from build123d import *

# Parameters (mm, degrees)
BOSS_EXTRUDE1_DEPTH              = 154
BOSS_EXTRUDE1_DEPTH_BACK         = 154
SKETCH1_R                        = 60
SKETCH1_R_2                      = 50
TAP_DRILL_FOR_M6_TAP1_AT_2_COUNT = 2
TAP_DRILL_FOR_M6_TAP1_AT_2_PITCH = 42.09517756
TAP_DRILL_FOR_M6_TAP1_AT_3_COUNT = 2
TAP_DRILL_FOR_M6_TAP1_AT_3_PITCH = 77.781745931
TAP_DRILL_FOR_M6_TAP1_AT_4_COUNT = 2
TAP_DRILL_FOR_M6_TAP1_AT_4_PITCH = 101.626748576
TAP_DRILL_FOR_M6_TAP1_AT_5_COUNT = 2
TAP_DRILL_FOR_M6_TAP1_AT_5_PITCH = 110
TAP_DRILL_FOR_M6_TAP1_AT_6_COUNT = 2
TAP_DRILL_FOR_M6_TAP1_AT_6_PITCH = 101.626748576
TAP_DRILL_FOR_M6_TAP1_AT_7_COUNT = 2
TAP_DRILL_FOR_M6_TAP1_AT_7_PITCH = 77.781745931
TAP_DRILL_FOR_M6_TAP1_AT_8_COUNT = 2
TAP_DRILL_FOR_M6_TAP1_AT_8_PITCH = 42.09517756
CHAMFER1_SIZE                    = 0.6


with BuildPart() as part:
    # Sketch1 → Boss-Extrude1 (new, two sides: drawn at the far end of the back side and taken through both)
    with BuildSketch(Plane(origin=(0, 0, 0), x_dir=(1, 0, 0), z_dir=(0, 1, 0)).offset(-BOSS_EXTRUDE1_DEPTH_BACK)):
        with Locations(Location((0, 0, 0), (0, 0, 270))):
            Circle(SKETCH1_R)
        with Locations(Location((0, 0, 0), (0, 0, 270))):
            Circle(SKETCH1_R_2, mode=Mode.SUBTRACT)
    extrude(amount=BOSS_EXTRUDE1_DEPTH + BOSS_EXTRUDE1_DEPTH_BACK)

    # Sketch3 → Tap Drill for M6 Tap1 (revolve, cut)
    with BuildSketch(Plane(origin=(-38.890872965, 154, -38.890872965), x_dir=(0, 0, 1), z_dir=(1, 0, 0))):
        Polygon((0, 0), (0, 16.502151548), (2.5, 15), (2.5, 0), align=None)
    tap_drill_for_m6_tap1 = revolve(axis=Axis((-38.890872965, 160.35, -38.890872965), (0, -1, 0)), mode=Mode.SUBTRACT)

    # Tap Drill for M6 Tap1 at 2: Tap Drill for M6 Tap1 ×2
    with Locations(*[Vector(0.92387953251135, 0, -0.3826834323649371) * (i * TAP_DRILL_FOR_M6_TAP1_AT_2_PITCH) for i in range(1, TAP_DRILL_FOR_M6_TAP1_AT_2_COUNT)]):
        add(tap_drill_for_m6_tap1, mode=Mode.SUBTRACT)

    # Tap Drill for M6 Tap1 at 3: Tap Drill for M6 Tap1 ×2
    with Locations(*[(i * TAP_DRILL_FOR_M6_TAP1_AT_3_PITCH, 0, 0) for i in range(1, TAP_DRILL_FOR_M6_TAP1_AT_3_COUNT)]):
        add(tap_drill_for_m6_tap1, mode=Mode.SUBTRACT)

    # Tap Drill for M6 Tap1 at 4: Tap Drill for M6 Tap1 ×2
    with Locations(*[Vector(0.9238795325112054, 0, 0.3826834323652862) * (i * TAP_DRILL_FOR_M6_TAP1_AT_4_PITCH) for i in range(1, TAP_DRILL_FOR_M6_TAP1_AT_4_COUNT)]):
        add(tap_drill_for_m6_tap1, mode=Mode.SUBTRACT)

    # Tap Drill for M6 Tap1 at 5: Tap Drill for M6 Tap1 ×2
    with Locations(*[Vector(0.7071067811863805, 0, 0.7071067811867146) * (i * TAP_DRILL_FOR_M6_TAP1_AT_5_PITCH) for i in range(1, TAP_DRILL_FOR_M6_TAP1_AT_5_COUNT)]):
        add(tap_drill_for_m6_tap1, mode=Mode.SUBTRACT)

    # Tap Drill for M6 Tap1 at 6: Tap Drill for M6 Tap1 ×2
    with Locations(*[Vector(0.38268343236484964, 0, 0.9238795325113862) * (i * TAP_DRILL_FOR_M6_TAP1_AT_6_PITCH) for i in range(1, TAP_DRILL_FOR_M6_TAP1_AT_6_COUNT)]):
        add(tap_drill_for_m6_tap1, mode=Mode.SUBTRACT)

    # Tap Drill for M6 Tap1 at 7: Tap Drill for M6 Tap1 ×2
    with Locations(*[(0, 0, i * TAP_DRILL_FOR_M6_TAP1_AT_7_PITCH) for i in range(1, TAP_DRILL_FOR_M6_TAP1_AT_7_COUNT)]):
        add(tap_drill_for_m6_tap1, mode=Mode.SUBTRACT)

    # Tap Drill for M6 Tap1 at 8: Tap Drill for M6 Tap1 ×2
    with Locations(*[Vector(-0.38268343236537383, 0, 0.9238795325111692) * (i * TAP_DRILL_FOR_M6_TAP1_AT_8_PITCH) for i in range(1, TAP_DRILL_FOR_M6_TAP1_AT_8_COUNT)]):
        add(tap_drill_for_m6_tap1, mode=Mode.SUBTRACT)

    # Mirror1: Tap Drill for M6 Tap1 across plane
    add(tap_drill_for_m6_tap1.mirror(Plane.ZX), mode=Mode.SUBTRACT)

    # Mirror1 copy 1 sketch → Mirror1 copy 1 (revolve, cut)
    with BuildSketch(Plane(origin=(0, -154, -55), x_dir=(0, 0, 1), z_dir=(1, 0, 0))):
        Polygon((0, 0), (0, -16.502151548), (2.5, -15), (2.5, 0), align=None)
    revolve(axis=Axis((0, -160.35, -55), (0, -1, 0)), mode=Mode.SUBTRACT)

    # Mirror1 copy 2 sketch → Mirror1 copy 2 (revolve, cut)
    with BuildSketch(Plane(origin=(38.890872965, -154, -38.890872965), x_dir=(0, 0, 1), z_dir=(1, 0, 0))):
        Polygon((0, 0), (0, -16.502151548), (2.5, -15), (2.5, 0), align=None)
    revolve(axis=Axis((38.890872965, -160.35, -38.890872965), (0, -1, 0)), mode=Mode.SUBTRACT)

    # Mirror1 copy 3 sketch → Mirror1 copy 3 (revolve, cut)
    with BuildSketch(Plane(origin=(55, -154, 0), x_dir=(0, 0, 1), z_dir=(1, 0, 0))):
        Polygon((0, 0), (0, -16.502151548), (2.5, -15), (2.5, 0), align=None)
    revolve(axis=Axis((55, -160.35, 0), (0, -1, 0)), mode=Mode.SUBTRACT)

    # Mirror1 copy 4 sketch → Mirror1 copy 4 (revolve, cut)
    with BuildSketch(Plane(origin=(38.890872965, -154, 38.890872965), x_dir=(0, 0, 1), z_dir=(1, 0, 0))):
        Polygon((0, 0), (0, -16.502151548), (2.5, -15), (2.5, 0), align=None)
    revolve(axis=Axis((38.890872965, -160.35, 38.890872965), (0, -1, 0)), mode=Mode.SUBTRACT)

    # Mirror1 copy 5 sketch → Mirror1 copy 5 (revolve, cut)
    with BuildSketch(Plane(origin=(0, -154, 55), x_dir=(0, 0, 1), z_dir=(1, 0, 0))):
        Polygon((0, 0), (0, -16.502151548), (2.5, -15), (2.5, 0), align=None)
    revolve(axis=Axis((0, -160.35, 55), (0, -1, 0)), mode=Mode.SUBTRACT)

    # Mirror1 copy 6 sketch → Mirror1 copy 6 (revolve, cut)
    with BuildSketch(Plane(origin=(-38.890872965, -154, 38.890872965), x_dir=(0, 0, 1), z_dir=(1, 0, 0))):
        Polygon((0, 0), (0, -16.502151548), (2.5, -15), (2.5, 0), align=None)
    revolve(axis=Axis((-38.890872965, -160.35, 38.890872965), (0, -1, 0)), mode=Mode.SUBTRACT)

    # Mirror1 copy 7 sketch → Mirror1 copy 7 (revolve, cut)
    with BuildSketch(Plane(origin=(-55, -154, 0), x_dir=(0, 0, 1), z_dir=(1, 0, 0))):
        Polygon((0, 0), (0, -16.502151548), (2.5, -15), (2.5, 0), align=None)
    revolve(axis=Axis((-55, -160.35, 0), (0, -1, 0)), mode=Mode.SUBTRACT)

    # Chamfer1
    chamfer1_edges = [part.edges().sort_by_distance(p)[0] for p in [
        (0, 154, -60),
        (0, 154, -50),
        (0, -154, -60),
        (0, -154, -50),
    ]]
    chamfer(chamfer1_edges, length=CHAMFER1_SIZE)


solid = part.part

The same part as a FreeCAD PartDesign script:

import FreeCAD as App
import Part
import Sketcher
Q = App.Units.Quantity


def edges_at(feature, points):
    """Names of the edges that pass closest to the given points."""
    edges = feature.Shape.Edges
    near = lambda p: min(range(len(edges)), key=lambda i: edges[i].distToShape(Part.Vertex(*p))[0])
    return sorted({f"Edge{near(p) + 1}" for p in points})


def add_polygon(sketch, points):
    """Adds a closed chain of lines whose ends are joined by coincident constraints."""
    first, n = sketch.GeometryCount, len(points)
    for a, b in zip(points, points[1:] + points[:1]):
        sketch.addGeometry(Part.LineSegment(App.Vector(*a, 0), App.Vector(*b, 0)), False)
    for i in range(n):
        sketch.addConstraint(Sketcher.Constraint("Coincident", first + i, 2, first + (i + 1) % n, 1))

doc = App.newDocument("Part")
params = doc.addObject("Spreadsheet::Sheet", "Params")
for row, (alias, value) in enumerate([
    ("sketch1_diameter", "120 mm"),
    ("sketch1_diameter2", "100 mm"),
    ("pad1_length", "154 mm"),
    ("pad1_length2", "154 mm"),
    ("sketch2_width", "15 mm"),
    ("sketch2_height", "2.5 mm"),
    ("groove_angle", "360 deg"),
    ("linearpattern_pitch", "42.095178 mm"),
    ("linearpattern2_pitch", "77.781746 mm"),
    ("linearpattern3_pitch", "101.626749 mm"),
    ("linearpattern4_pitch", "110 mm"),
    ("linearpattern5_pitch", "101.626749 mm"),
    ("linearpattern6_pitch", "77.781746 mm"),
    ("linearpattern7_pitch", "42.095178 mm"),
    ("sketch3_width", "15 mm"),
    ("sketch3_height", "2.5 mm"),
    ("groove2_angle", "360 deg"),
    ("sketch4_width", "15 mm"),
    ("sketch4_height", "2.5 mm"),
    ("groove3_angle", "360 deg"),
    ("sketch5_width", "15 mm"),
    ("sketch5_height", "2.5 mm"),
    ("groove4_angle", "360 deg"),
    ("sketch6_width", "15 mm"),
    ("sketch6_height", "2.5 mm"),
    ("groove5_angle", "360 deg"),
    ("sketch7_width", "15 mm"),
    ("sketch7_height", "2.5 mm"),
    ("groove6_angle", "360 deg"),
    ("sketch8_width", "15 mm"),
    ("sketch8_height", "2.5 mm"),
    ("groove7_angle", "360 deg"),
    ("sketch9_width", "15 mm"),
    ("sketch9_height", "2.5 mm"),
    ("groove8_angle", "360 deg"),
    ("chamfer_size", "0.6 mm"),
], start=1):
    params.set(f"A{row}", alias)
    params.set(f"B{row}", "=" + value)
    params.setAlias(f"B{row}", alias)

body = doc.addObject("PartDesign::Body", "Body")

# Sketch on XZ plane
sketch1 = body.newObject("Sketcher::SketchObject", "Sketch")
sketch1.AttachmentSupport = (doc.getObject("XZ_Plane"), [""])
sketch1.MapMode = "FlatFace"
sketch1.addGeometry(Part.Circle(App.Vector(0, 0, 0), App.Vector(0, 0, 1), 60), False)
sketch1.addGeometry(Part.Circle(App.Vector(0, 0, 0), App.Vector(0, 0, 1), 50), False)
sketch1.addConstraint(Sketcher.Constraint("Coincident", 0, 3, -1, 1))
sketch1.addConstraint(Sketcher.Constraint("Coincident", 1, 3, -1, 1))
sketch1.addConstraint(Sketcher.Constraint("Diameter", 0, 120.0))
sketch1.addConstraint(Sketcher.Constraint("Diameter", 1, 100.0))
sketch1.setExpression("Constraints[2]", "Params.sketch1_diameter")
sketch1.setExpression("Constraints[3]", "Params.sketch1_diameter2")
pad1 = body.newObject("PartDesign::Pad", "Pad")
pad1.Profile = sketch1
pad1.Type = "TwoLengths"
pad1.setExpression("Length", "Params.pad1_length")
pad1.setExpression("Length2", "Params.pad1_length2")
pad1.Reversed = True

# Sketch on YZ plane
sketch2 = body.newObject("Sketcher::SketchObject", "Sketch001")
sketch2.AttachmentSupport = (doc.getObject("YZ_Plane"), [""])
sketch2.MapMode = "FlatFace"
sketch2.AttachmentOffset = App.Placement(App.Vector(0, 0, -38.890873), App.Rotation())
add_polygon(sketch2, [(137.5, -38.9), (154, -38.9), (154, -36.4), (139, -36.4)])  # lines 0-3
sketch2.addGeometry(Part.LineSegment(App.Vector(154, -38.9, 0), App.Vector(137.5, -38.9, 0)), True)  # axis
sketch2.addConstraint(Sketcher.Constraint("Horizontal", 0))
sketch2.addConstraint(Sketcher.Constraint("Vertical", 1))
sketch2.addConstraint(Sketcher.Constraint("Horizontal", 2))
sketch2.addConstraint(Sketcher.Constraint("Horizontal", 4))
sketch2.addConstraint(Sketcher.Constraint("Coincident", 4, 1, 0, 2))
sketch2.addConstraint(Sketcher.Constraint("Equal", 0, 4))
sketch2.addConstraint(Sketcher.Constraint("DistanceX", 2, 2, 2, 1, 15.0))
sketch2.addConstraint(Sketcher.Constraint("Angle", 3, Q("-121 deg")))
sketch2.addConstraint(Sketcher.Constraint("DistanceY", 1, 1, 1, 2, 2.5))
sketch2.addConstraint(Sketcher.Constraint("DistanceX", -1, 1, 0, 2, 154.0))
sketch2.addConstraint(Sketcher.Constraint("DistanceY", 0, 2, -1, 1, 38.890873))
sketch2.setExpression("Constraints[10]", "Params.sketch2_width")
sketch2.setExpression("Constraints[12]", "Params.sketch2_height")
groove = body.newObject("PartDesign::Groove", "Groove")
groove.Profile = sketch2
groove.ReferenceAxis = (sketch2, ["Axis0"])
groove.setExpression("Angle", "Params.groove_angle")
doc.recompute()

datumline = body.newObject("PartDesign::Line", "DatumLine")
datumline.Placement = App.Placement(App.Vector(0, 0, 0), App.Rotation(App.Vector(0, 0, 1), App.Vector(0.923879533, 0, -0.382683432)))
linearpattern = body.newObject("PartDesign::LinearPattern", "LinearPattern")
linearpattern.Originals = [groove]
linearpattern.Direction = (datumline, [""])
linearpattern.Mode = "offset"
linearpattern.setExpression("Offset", "Params.linearpattern_pitch")
linearpattern.Occurrences = 2
body.Tip = linearpattern
doc.recompute()

linearpattern2 = body.newObject("PartDesign::LinearPattern", "LinearPattern001")
linearpattern2.Originals = [groove]
linearpattern2.Direction = (doc.getObject("X_Axis"), [""])
linearpattern2.Mode = "offset"
linearpattern2.setExpression("Offset", "Params.linearpattern2_pitch")
linearpattern2.Occurrences = 2
body.Tip = linearpattern2
doc.recompute()

datumline2 = body.newObject("PartDesign::Line", "DatumLine001")
datumline2.Placement = App.Placement(App.Vector(0, 0, 0), App.Rotation(App.Vector(0, 0, 1), App.Vector(0.923879533, 0, 0.382683432)))
linearpattern3 = body.newObject("PartDesign::LinearPattern", "LinearPattern002")
linearpattern3.Originals = [groove]
linearpattern3.Direction = (datumline2, [""])
linearpattern3.Mode = "offset"
linearpattern3.setExpression("Offset", "Params.linearpattern3_pitch")
linearpattern3.Occurrences = 2
body.Tip = linearpattern3
doc.recompute()

datumline3 = body.newObject("PartDesign::Line", "DatumLine002")
datumline3.Placement = App.Placement(App.Vector(0, 0, 0), App.Rotation(App.Vector(0, 0, 1), App.Vector(0.707106781, 0, 0.707106781)))
linearpattern4 = body.newObject("PartDesign::LinearPattern", "LinearPattern003")
linearpattern4.Originals = [groove]
linearpattern4.Direction = (datumline3, [""])
linearpattern4.Mode = "offset"
linearpattern4.setExpression("Offset", "Params.linearpattern4_pitch")
linearpattern4.Occurrences = 2
body.Tip = linearpattern4
doc.recompute()

datumline4 = body.newObject("PartDesign::Line", "DatumLine003")
datumline4.Placement = App.Placement(App.Vector(0, 0, 0), App.Rotation(App.Vector(0, 0, 1), App.Vector(0.382683432, 0, 0.923879533)))
linearpattern5 = body.newObject("PartDesign::LinearPattern", "LinearPattern004")
linearpattern5.Originals = [groove]
linearpattern5.Direction = (datumline4, [""])
linearpattern5.Mode = "offset"
linearpattern5.setExpression("Offset", "Params.linearpattern5_pitch")
linearpattern5.Occurrences = 2
body.Tip = linearpattern5
doc.recompute()

linearpattern6 = body.newObject("PartDesign::LinearPattern", "LinearPattern005")
linearpattern6.Originals = [groove]
linearpattern6.Direction = (doc.getObject("Z_Axis"), [""])
linearpattern6.Mode = "offset"
linearpattern6.setExpression("Offset", "Params.linearpattern6_pitch")
linearpattern6.Occurrences = 2
body.Tip = linearpattern6
doc.recompute()

datumline5 = body.newObject("PartDesign::Line", "DatumLine004")
datumline5.Placement = App.Placement(App.Vector(0, 0, 0), App.Rotation(App.Vector(0, 0, 1), App.Vector(-0.382683432, 0, 0.923879533)))
linearpattern7 = body.newObject("PartDesign::LinearPattern", "LinearPattern006")
linearpattern7.Originals = [groove]
linearpattern7.Direction = (datumline5, [""])
linearpattern7.Mode = "offset"
linearpattern7.setExpression("Offset", "Params.linearpattern7_pitch")
linearpattern7.Occurrences = 2
body.Tip = linearpattern7
doc.recompute()

mirrored = body.newObject("PartDesign::Mirrored", "Mirrored")
mirrored.Originals = [groove]
mirrored.MirrorPlane = (doc.getObject("XZ_Plane"), [""])
body.Tip = mirrored

# Sketch on YZ plane
sketch3 = body.newObject("Sketcher::SketchObject", "Sketch002")
sketch3.AttachmentSupport = (doc.getObject("YZ_Plane"), [""])
sketch3.MapMode = "FlatFace"
add_polygon(sketch3, [(-154, -55), (-137.5, -55), (-139, -52.5), (-154, -52.5)])  # lines 0-3
sketch3.addGeometry(Part.LineSegment(App.Vector(-137.5, -55, 0), App.Vector(-154, -55, 0)), True)  # axis
sketch3.addConstraint(Sketcher.Constraint("Horizontal", 0))
sketch3.addConstraint(Sketcher.Constraint("Horizontal", 2))
sketch3.addConstraint(Sketcher.Constraint("Vertical", 3))
sketch3.addConstraint(Sketcher.Constraint("Horizontal", 4))
sketch3.addConstraint(Sketcher.Constraint("Coincident", 4, 1, 0, 2))
sketch3.addConstraint(Sketcher.Constraint("Vertical", 2, 2, 4, 2))
sketch3.addConstraint(Sketcher.Constraint("DistanceX", 2, 2, 2, 1, 15.0))
sketch3.addConstraint(Sketcher.Constraint("Angle", 1, Q("121 deg")))
sketch3.addConstraint(Sketcher.Constraint("DistanceY", 3, 2, 3, 1, 2.5))
sketch3.addConstraint(Sketcher.Constraint("DistanceY", 0, 2, -1, 1, 55.0))
sketch3.addConstraint(Sketcher.Constraint("DistanceX", 1, 2, -1, 1, 139.0))
sketch3.setExpression("Constraints[10]", "Params.sketch3_width")
sketch3.setExpression("Constraints[12]", "Params.sketch3_height")
groove2 = body.newObject("PartDesign::Groove", "Groove001")
groove2.Profile = sketch3
groove2.ReferenceAxis = (sketch3, ["Axis0"])
groove2.setExpression("Angle", "Params.groove2_angle")

# Sketch on YZ plane
sketch4 = body.newObject("Sketcher::SketchObject", "Sketch003")
sketch4.AttachmentSupport = (doc.getObject("YZ_Plane"), [""])
sketch4.MapMode = "FlatFace"
sketch4.AttachmentOffset = App.Placement(App.Vector(0, 0, 38.890873), App.Rotation())
add_polygon(sketch4, [(-154, -38.9), (-137.5, -38.9), (-139, -36.4), (-154, -36.4)])  # lines 0-3
sketch4.addGeometry(Part.LineSegment(App.Vector(-137.5, -38.9, 0), App.Vector(-154, -38.9, 0)), True)  # axis
sketch4.addConstraint(Sketcher.Constraint("Horizontal", 0))
sketch4.addConstraint(Sketcher.Constraint("Horizontal", 2))
sketch4.addConstraint(Sketcher.Constraint("Vertical", 3))
sketch4.addConstraint(Sketcher.Constraint("Horizontal", 4))
sketch4.addConstraint(Sketcher.Constraint("Coincident", 4, 1, 0, 2))
sketch4.addConstraint(Sketcher.Constraint("Vertical", 2, 2, 4, 2))
sketch4.addConstraint(Sketcher.Constraint("DistanceX", 2, 2, 2, 1, 15.0))
sketch4.addConstraint(Sketcher.Constraint("Angle", 1, Q("121 deg")))
sketch4.addConstraint(Sketcher.Constraint("DistanceY", 3, 2, 3, 1, 2.5))
sketch4.addConstraint(Sketcher.Constraint("DistanceX", 1, 2, -1, 1, 139.0))
sketch4.addConstraint(Sketcher.Constraint("DistanceY", 0, 2, -1, 1, 38.890873))
sketch4.setExpression("Constraints[10]", "Params.sketch4_width")
sketch4.setExpression("Constraints[12]", "Params.sketch4_height")
groove3 = body.newObject("PartDesign::Groove", "Groove002")
groove3.Profile = sketch4
groove3.ReferenceAxis = (sketch4, ["Axis0"])
groove3.setExpression("Angle", "Params.groove3_angle")

# Sketch on YZ plane
sketch5 = body.newObject("Sketcher::SketchObject", "Sketch004")
sketch5.AttachmentSupport = (doc.getObject("YZ_Plane"), [""])
sketch5.MapMode = "FlatFace"
sketch5.AttachmentOffset = App.Placement(App.Vector(0, 0, 55), App.Rotation())
add_polygon(sketch5, [(-154, 0), (-137.5, 0), (-139, 2.5), (-154, 2.5)])  # lines 0-3
sketch5.addConstraint(Sketcher.Constraint("Horizontal", 0))
sketch5.addConstraint(Sketcher.Constraint("Horizontal", 2))
sketch5.addConstraint(Sketcher.Constraint("Vertical", 3))
sketch5.addConstraint(Sketcher.Constraint("PointOnObject", 0, 2, -1))
sketch5.addConstraint(Sketcher.Constraint("DistanceX", 2, 2, 2, 1, 15.0))
sketch5.addConstraint(Sketcher.Constraint("Angle", 1, Q("121 deg")))
sketch5.addConstraint(Sketcher.Constraint("DistanceY", 3, 2, 3, 1, 2.5))
sketch5.addConstraint(Sketcher.Constraint("DistanceX", 1, 2, -1, 1, 139.0))
sketch5.setExpression("Constraints[8]", "Params.sketch5_width")
sketch5.setExpression("Constraints[10]", "Params.sketch5_height")
groove4 = body.newObject("PartDesign::Groove", "Groove003")
groove4.Profile = sketch5
groove4.ReferenceAxis = (sketch5, ["H_Axis"])
groove4.setExpression("Angle", "Params.groove4_angle")

# Sketch on YZ plane
sketch6 = body.newObject("Sketcher::SketchObject", "Sketch005")
sketch6.AttachmentSupport = (doc.getObject("YZ_Plane"), [""])
sketch6.MapMode = "FlatFace"
sketch6.AttachmentOffset = App.Placement(App.Vector(0, 0, 38.890873), App.Rotation())
add_polygon(sketch6, [(-154, 38.9), (-137.5, 38.9), (-139, 41.4), (-154, 41.4)])  # lines 0-3
sketch6.addGeometry(Part.LineSegment(App.Vector(-137.5, 38.9, 0), App.Vector(-154, 38.9, 0)), True)  # axis
sketch6.addConstraint(Sketcher.Constraint("Horizontal", 0))
sketch6.addConstraint(Sketcher.Constraint("Horizontal", 2))
sketch6.addConstraint(Sketcher.Constraint("Vertical", 3))
sketch6.addConstraint(Sketcher.Constraint("Horizontal", 4))
sketch6.addConstraint(Sketcher.Constraint("Coincident", 4, 1, 0, 2))
sketch6.addConstraint(Sketcher.Constraint("Vertical", 2, 2, 4, 2))
sketch6.addConstraint(Sketcher.Constraint("DistanceX", 2, 2, 2, 1, 15.0))
sketch6.addConstraint(Sketcher.Constraint("Angle", 1, Q("121 deg")))
sketch6.addConstraint(Sketcher.Constraint("DistanceY", 3, 2, 3, 1, 2.5))
sketch6.addConstraint(Sketcher.Constraint("DistanceX", 1, 2, -1, 1, 139.0))
sketch6.addConstraint(Sketcher.Constraint("DistanceY", -1, 1, 0, 2, 38.890873))
sketch6.setExpression("Constraints[10]", "Params.sketch6_width")
sketch6.setExpression("Constraints[12]", "Params.sketch6_height")
groove5 = body.newObject("PartDesign::Groove", "Groove004")
groove5.Profile = sketch6
groove5.ReferenceAxis = (sketch6, ["Axis0"])
groove5.setExpression("Angle", "Params.groove5_angle")

# Sketch on YZ plane
sketch7 = body.newObject("Sketcher::SketchObject", "Sketch006")
sketch7.AttachmentSupport = (doc.getObject("YZ_Plane"), [""])
sketch7.MapMode = "FlatFace"
add_polygon(sketch7, [(-154, 55), (-137.5, 55), (-139, 57.5), (-154, 57.5)])  # lines 0-3
sketch7.addGeometry(Part.LineSegment(App.Vector(-137.5, 55, 0), App.Vector(-154, 55, 0)), True)  # axis
sketch7.addConstraint(Sketcher.Constraint("Horizontal", 0))
sketch7.addConstraint(Sketcher.Constraint("Horizontal", 2))
sketch7.addConstraint(Sketcher.Constraint("Vertical", 3))
sketch7.addConstraint(Sketcher.Constraint("Horizontal", 4))
sketch7.addConstraint(Sketcher.Constraint("Coincident", 4, 1, 0, 2))
sketch7.addConstraint(Sketcher.Constraint("Vertical", 2, 2, 4, 2))
sketch7.addConstraint(Sketcher.Constraint("DistanceX", 2, 2, 2, 1, 15.0))
sketch7.addConstraint(Sketcher.Constraint("Angle", 1, Q("121 deg")))
sketch7.addConstraint(Sketcher.Constraint("DistanceY", 3, 2, 3, 1, 2.5))
sketch7.addConstraint(Sketcher.Constraint("DistanceY", -1, 1, 0, 2, 55.0))
sketch7.addConstraint(Sketcher.Constraint("DistanceX", 1, 2, -1, 1, 139.0))
sketch7.setExpression("Constraints[10]", "Params.sketch7_width")
sketch7.setExpression("Constraints[12]", "Params.sketch7_height")
groove6 = body.newObject("PartDesign::Groove", "Groove005")
groove6.Profile = sketch7
groove6.ReferenceAxis = (sketch7, ["Axis0"])
groove6.setExpression("Angle", "Params.groove6_angle")

# Sketch on YZ plane
sketch8 = body.newObject("Sketcher::SketchObject", "Sketch007")
sketch8.AttachmentSupport = (doc.getObject("YZ_Plane"), [""])
sketch8.MapMode = "FlatFace"
sketch8.AttachmentOffset = App.Placement(App.Vector(0, 0, -38.890873), App.Rotation())
add_polygon(sketch8, [(-154, 38.9), (-137.5, 38.9), (-139, 41.4), (-154, 41.4)])  # lines 0-3
sketch8.addGeometry(Part.LineSegment(App.Vector(-137.5, 38.9, 0), App.Vector(-154, 38.9, 0)), True)  # axis
sketch8.addConstraint(Sketcher.Constraint("Horizontal", 0))
sketch8.addConstraint(Sketcher.Constraint("Horizontal", 2))
sketch8.addConstraint(Sketcher.Constraint("Vertical", 3))
sketch8.addConstraint(Sketcher.Constraint("Horizontal", 4))
sketch8.addConstraint(Sketcher.Constraint("Coincident", 4, 1, 0, 2))
sketch8.addConstraint(Sketcher.Constraint("Vertical", 2, 2, 4, 2))
sketch8.addConstraint(Sketcher.Constraint("DistanceX", 2, 2, 2, 1, 15.0))
sketch8.addConstraint(Sketcher.Constraint("Angle", 1, Q("121 deg")))
sketch8.addConstraint(Sketcher.Constraint("DistanceY", 3, 2, 3, 1, 2.5))
sketch8.addConstraint(Sketcher.Constraint("DistanceX", 1, 2, -1, 1, 139.0))
sketch8.addConstraint(Sketcher.Constraint("DistanceY", -1, 1, 0, 2, 38.890873))
sketch8.setExpression("Constraints[10]", "Params.sketch8_width")
sketch8.setExpression("Constraints[12]", "Params.sketch8_height")
groove7 = body.newObject("PartDesign::Groove", "Groove006")
groove7.Profile = sketch8
groove7.ReferenceAxis = (sketch8, ["Axis0"])
groove7.setExpression("Angle", "Params.groove7_angle")

# Sketch on YZ plane
sketch9 = body.newObject("Sketcher::SketchObject", "Sketch008")
sketch9.AttachmentSupport = (doc.getObject("YZ_Plane"), [""])
sketch9.MapMode = "FlatFace"
sketch9.AttachmentOffset = App.Placement(App.Vector(0, 0, -55), App.Rotation())
add_polygon(sketch9, [(-154, 0), (-137.5, 0), (-139, 2.5), (-154, 2.5)])  # lines 0-3
sketch9.addConstraint(Sketcher.Constraint("Horizontal", 0))
sketch9.addConstraint(Sketcher.Constraint("Horizontal", 2))
sketch9.addConstraint(Sketcher.Constraint("Vertical", 3))
sketch9.addConstraint(Sketcher.Constraint("PointOnObject", 0, 2, -1))
sketch9.addConstraint(Sketcher.Constraint("DistanceX", 2, 2, 2, 1, 15.0))
sketch9.addConstraint(Sketcher.Constraint("Angle", 1, Q("121 deg")))
sketch9.addConstraint(Sketcher.Constraint("DistanceY", 3, 2, 3, 1, 2.5))
sketch9.addConstraint(Sketcher.Constraint("DistanceX", 1, 2, -1, 1, 139.0))
sketch9.setExpression("Constraints[8]", "Params.sketch9_width")
sketch9.setExpression("Constraints[10]", "Params.sketch9_height")
groove8 = body.newObject("PartDesign::Groove", "Groove007")
groove8.Profile = sketch9
groove8.ReferenceAxis = (sketch9, ["H_Axis"])
groove8.setExpression("Angle", "Params.groove8_angle")
doc.recompute()

chamfer = body.newObject("PartDesign::Chamfer", "Chamfer")
chamfer.Base = (groove8, edges_at(groove8, [
    (0, 154, -60),
    (0, 154, -50),
    (0, -154, -60),
    (0, -154, -50),
]))
chamfer.setExpression("Size", "Params.chamfer_size")

doc.recompute()
